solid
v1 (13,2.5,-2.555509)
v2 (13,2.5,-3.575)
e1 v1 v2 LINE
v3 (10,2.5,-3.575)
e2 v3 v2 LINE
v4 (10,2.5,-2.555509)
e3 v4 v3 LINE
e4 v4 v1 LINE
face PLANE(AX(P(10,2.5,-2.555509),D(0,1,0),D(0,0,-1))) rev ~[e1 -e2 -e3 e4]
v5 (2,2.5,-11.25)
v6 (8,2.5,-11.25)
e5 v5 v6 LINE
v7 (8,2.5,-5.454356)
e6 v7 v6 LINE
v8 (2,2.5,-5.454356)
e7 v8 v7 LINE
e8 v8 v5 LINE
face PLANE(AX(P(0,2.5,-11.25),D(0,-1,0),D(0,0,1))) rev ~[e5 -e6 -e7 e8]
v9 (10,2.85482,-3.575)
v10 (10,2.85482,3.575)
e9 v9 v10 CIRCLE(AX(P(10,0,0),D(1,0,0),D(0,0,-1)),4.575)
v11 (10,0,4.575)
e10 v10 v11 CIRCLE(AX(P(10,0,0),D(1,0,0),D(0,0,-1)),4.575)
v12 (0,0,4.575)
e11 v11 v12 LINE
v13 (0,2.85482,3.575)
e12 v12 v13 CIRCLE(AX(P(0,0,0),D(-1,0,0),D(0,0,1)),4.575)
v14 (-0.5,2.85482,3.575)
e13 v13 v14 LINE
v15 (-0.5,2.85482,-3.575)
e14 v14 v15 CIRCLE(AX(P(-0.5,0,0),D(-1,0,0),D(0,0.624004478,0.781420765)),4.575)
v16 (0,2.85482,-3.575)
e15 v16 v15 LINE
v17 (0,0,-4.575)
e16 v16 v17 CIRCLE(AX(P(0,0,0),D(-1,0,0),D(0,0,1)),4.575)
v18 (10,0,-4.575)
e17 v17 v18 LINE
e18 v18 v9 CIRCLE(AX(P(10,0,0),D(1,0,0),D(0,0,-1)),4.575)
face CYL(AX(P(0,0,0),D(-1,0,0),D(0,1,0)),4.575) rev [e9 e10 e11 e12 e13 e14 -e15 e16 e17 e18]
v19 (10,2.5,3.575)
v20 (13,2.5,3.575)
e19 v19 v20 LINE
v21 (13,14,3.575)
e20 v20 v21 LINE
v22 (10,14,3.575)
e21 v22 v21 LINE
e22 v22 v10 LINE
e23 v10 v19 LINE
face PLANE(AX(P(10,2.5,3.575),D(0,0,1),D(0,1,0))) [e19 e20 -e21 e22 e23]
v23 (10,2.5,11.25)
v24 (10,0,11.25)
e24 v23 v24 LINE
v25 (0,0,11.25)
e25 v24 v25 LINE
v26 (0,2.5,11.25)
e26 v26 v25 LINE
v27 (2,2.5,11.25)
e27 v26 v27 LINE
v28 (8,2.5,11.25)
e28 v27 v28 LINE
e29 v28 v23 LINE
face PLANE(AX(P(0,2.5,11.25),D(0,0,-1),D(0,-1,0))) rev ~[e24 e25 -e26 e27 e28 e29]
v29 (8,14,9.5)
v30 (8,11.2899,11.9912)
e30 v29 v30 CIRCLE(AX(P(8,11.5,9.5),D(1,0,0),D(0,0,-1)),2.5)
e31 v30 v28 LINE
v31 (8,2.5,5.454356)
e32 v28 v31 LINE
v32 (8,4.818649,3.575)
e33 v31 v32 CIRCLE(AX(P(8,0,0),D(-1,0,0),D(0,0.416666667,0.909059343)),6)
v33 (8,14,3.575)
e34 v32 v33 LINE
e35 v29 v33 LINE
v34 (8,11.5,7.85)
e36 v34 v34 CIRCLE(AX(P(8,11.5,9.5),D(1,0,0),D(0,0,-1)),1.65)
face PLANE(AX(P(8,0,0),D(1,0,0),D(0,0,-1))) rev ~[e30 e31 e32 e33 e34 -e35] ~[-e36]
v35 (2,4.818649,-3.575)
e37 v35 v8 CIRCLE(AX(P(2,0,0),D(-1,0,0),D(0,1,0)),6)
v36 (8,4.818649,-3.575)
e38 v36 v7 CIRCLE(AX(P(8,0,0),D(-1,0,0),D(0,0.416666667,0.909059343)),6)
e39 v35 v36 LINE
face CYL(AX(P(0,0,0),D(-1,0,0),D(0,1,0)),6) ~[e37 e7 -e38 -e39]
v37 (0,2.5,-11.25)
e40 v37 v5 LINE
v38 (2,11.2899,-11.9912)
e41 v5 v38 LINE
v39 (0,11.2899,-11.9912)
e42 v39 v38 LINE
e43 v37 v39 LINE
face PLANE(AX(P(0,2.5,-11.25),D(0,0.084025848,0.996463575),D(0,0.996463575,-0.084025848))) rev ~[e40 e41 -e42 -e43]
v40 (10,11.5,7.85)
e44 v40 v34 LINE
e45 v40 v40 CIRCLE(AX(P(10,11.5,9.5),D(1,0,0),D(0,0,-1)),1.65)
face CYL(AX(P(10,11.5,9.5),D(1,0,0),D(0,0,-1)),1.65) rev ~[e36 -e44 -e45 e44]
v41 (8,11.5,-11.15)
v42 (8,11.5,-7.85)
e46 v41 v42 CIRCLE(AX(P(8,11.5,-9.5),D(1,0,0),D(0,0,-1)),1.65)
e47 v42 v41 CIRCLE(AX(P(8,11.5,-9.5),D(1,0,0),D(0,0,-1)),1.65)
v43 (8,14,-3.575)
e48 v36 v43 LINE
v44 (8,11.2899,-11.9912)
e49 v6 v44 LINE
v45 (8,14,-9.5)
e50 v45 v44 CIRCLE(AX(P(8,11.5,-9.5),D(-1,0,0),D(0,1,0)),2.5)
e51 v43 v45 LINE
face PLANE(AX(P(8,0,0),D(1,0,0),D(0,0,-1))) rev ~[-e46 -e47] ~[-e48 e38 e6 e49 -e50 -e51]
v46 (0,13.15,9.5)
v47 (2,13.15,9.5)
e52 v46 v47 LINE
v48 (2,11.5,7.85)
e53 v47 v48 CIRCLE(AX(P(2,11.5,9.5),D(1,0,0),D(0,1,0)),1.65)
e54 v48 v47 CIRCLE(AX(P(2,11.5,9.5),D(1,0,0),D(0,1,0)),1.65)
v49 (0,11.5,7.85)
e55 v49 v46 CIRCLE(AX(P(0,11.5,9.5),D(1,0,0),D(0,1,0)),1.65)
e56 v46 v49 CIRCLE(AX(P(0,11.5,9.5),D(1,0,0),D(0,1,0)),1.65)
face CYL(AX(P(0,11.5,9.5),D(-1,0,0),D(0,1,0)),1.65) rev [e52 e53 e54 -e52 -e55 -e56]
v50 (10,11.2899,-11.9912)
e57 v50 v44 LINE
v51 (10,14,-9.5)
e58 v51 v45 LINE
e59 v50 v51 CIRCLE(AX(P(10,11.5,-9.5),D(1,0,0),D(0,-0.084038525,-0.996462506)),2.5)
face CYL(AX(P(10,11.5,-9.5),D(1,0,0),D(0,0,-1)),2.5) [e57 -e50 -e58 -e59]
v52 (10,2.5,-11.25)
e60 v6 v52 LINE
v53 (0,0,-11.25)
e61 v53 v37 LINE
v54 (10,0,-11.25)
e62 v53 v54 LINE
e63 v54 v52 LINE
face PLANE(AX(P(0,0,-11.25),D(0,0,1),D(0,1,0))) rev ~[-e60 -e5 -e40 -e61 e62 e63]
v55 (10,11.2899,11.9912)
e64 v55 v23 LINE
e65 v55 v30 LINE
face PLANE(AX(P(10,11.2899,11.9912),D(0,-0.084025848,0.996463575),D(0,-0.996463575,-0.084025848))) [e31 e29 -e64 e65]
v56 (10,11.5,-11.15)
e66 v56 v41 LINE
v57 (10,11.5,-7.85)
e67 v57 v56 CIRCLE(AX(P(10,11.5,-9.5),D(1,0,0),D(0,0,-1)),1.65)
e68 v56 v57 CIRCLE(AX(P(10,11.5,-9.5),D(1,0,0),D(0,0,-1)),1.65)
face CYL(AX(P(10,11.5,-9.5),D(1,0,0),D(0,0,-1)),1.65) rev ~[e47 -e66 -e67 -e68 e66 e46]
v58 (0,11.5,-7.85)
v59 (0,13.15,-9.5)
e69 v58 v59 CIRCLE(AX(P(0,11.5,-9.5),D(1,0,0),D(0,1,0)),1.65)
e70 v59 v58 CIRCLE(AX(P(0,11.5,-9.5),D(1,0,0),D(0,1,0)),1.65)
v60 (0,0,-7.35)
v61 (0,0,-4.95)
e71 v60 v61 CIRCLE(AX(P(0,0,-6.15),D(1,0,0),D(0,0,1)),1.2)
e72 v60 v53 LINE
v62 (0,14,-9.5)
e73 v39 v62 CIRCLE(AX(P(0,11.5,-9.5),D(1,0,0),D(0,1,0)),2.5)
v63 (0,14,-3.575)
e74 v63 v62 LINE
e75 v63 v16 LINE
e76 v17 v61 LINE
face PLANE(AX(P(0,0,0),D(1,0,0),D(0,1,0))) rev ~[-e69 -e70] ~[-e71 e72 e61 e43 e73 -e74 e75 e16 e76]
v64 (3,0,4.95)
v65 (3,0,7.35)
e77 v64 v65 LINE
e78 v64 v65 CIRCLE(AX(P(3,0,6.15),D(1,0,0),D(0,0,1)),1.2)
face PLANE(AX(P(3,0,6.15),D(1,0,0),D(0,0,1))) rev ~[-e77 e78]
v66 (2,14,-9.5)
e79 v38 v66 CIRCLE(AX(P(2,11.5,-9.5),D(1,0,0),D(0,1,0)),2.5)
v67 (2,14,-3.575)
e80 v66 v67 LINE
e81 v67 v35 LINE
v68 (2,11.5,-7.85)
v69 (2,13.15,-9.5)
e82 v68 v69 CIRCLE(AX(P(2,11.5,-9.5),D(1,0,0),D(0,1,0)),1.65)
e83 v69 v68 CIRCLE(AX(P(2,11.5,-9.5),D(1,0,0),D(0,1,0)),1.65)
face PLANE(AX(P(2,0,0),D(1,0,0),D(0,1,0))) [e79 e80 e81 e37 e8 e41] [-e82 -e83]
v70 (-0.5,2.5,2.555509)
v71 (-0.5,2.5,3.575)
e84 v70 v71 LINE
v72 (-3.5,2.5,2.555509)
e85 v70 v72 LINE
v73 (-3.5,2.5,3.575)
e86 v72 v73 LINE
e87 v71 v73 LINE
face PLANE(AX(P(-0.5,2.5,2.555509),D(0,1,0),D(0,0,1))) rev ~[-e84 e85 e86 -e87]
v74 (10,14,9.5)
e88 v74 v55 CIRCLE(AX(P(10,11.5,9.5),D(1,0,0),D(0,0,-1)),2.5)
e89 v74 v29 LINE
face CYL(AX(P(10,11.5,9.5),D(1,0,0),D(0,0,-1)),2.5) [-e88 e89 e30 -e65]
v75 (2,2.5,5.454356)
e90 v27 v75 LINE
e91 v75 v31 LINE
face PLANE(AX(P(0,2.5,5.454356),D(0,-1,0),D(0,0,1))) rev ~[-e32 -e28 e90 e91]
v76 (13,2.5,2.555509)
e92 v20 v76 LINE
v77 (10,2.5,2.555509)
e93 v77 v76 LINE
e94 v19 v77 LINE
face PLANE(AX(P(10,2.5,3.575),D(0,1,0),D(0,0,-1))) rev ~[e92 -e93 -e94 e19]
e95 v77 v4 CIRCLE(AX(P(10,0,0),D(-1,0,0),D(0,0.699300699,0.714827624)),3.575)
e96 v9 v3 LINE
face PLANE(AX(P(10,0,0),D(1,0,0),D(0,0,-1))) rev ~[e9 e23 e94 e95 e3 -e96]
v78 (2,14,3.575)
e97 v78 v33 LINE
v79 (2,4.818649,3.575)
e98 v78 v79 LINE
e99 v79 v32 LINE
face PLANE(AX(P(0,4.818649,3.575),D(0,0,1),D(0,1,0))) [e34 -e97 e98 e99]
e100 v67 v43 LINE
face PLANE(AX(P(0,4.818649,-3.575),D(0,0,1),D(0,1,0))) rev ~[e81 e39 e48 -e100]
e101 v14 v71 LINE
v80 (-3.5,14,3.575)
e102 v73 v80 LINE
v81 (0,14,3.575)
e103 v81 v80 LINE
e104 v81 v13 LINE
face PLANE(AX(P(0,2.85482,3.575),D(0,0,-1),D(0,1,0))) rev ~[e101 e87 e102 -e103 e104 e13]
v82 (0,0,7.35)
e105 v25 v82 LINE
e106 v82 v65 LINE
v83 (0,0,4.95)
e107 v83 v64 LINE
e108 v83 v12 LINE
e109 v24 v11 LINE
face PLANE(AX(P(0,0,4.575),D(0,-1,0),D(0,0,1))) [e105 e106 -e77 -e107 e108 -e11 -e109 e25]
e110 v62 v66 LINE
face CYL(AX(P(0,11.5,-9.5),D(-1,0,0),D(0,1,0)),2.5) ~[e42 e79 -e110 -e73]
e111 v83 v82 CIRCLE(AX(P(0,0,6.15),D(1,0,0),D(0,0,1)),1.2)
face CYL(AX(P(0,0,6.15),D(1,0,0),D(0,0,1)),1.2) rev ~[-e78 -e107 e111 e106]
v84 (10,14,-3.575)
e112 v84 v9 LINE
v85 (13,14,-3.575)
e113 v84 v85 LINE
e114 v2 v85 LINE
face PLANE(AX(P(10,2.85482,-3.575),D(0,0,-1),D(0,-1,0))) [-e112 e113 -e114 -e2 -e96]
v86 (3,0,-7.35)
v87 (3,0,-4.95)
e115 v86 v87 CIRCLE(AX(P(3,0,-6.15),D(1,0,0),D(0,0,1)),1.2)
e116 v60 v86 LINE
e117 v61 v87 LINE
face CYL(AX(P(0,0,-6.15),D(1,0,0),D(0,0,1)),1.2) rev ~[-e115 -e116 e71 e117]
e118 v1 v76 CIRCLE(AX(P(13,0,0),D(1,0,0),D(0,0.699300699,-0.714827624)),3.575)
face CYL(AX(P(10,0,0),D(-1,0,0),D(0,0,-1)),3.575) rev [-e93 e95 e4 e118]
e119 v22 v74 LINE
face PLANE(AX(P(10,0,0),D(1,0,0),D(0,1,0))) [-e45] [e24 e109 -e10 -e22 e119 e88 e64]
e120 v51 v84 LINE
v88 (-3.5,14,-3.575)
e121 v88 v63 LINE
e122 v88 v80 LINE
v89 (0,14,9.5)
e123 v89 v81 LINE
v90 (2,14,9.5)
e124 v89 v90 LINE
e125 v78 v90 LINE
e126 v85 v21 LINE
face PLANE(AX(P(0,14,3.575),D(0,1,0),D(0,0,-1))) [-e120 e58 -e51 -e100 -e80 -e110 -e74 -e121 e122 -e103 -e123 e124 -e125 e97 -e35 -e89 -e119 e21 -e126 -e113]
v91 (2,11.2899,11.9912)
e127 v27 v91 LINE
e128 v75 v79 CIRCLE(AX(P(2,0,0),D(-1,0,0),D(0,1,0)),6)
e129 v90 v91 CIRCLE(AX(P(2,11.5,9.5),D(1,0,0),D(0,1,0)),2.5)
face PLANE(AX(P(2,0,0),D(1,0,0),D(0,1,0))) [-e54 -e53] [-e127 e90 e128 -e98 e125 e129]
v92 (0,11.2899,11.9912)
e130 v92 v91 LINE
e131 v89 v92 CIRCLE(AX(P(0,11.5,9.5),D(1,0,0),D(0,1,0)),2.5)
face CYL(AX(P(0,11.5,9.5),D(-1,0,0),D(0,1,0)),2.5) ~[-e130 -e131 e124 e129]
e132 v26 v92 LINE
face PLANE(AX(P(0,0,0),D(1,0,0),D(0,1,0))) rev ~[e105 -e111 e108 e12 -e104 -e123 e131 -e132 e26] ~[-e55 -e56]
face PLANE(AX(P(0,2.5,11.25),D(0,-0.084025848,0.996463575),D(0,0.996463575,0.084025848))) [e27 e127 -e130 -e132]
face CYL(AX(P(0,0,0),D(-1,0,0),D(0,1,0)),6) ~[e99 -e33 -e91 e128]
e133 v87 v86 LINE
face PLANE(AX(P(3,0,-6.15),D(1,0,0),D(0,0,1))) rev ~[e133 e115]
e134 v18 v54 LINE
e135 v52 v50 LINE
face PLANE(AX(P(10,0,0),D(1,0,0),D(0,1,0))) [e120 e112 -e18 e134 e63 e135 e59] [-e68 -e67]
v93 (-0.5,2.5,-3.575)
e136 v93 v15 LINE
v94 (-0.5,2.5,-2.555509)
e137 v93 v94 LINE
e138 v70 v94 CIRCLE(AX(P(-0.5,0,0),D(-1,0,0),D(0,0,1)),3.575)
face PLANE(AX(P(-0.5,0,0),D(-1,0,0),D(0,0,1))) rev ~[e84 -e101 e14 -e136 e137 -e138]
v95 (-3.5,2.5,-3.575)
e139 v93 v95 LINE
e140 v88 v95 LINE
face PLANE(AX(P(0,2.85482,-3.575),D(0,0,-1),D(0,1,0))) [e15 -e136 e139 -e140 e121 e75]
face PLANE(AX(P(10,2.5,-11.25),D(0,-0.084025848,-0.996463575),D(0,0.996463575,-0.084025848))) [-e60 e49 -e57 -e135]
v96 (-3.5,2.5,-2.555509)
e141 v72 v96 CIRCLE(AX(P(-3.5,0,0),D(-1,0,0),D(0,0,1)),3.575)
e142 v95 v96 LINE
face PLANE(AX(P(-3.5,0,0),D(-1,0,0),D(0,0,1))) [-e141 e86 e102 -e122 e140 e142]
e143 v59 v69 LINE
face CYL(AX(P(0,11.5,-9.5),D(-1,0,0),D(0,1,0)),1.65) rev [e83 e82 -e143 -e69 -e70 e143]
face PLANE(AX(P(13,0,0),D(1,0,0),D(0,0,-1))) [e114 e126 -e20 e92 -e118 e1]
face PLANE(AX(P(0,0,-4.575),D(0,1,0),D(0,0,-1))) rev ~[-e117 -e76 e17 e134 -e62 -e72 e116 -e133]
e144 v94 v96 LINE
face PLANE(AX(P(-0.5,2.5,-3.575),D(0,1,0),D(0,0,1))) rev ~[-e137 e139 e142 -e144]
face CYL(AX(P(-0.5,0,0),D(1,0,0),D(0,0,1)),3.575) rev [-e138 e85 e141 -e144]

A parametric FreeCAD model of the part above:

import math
import FreeCAD as App
import Part
import Sketcher

V = App.Vector
Q = App.Units.Quantity

doc = App.newDocument("Part")
params = doc.addObject("Spreadsheet::Sheet", "Params")
for row, (alias, value) in enumerate([
    ("sketch1_diameter", "3.3 mm"),
    ("sketch1_radius", "2.5 mm"),
    ("sketch1_height", "19 mm"),
    ("sketch1_radius2", "1.25 mm"),
    ("sketch1_width", "2.5 mm"),
    ("pad1_length", "2 mm"),
    ("sketch2_radius", "6 mm"),
    ("sketch2_width", "2.5 mm"),
    ("sketch2_height", "7.15 mm"),
    ("pad2_length", "10 mm"),
    ("sketch3_radius", "6 mm"),
    ("sketch3_diameter", "3.3 mm"),
    ("sketch3_radius2", "2.5 mm"),
    ("sketch3_height", "19 mm"),
    ("pad3_length", "2 mm"),
    ("sketch4_height", "7.15 mm"),
    ("pad4_length", "0.5 mm"),
    ("sketch5_height", "7.15 mm"),
    ("sketch5_width", "11.5 mm"),
    ("pad5_length", "3 mm"),
    ("sketch6_width", "11.5 mm"),
    ("sketch6_height", "7.15 mm"),
    ("pad6_length", "3 mm"),
    ("sketch7_diameter", "2.4 mm"),
    ("hole_diameter", "2.4 mm"),
    ("hole_depth", "3 mm"),
], start=1):
    params.set(f"A{row}", alias)
    params.set(f"B{row}", "=" + value)
    params.setAlias(f"B{row}", alias)

body = doc.addObject("PartDesign::Body", "Body")

# Sketch on YZ plane
sketch1 = body.newObject("Sketcher::SketchObject", "Sketch")
sketch1.AttachmentSupport = (doc.getObject("YZ_Plane"), [""])
sketch1.MapMode = "FlatFace"
sketch1.addGeometry(Part.LineSegment(V(0, -4.575, 0), V(0, -4.9, 0)), False)
sketch1.addGeometry(Part.ArcOfCircle(Part.Circle(V(0, -6.15, 0), V(0, 0, 1), 1.25), math.radians(-90), math.radians(90)), False)
sketch1.addGeometry(Part.LineSegment(V(0, -7.4, 0), V(0, -11.25, 0)), False)
sketch1.addGeometry(Part.LineSegment(V(0, -11.25, 0), V(2.5, -11.25, 0)), False)
sketch1.addGeometry(Part.LineSegment(V(2.5, -11.25, 0), V(11.2899, -11.9912, 0)), False)
sketch1.addGeometry(Part.ArcOfCircle(Part.Circle(V(11.5, -9.5, 0), V(0, 0, 1), 2.5), math.radians(-94.820739), math.radians(0)), False)
sketch1.addGeometry(Part.LineSegment(V(14, -9.5, 0), V(14, 9.5, 0)), False)
sketch1.addGeometry(Part.ArcOfCircle(Part.Circle(V(11.5, 9.5, 0), V(0, 0, 1), 2.5), math.radians(0), math.radians(94.820739)), False)
sketch1.addGeometry(Part.LineSegment(V(11.2899, 11.9912, 0), V(2.5, 11.25, 0)), False)
sketch1.addGeometry(Part.LineSegment(V(2.5, 11.25, 0), V(0, 11.25, 0)), False)
sketch1.addGeometry(Part.LineSegment(V(0, 11.25, 0), V(0, 7.4, 0)), False)
sketch1.addGeometry(Part.ArcOfCircle(Part.Circle(V(0, 6.15, 0), V(0, 0, 1), 1.25), math.radians(-90), math.radians(90)), False)
sketch1.addGeometry(Part.LineSegment(V(0, 4.9, 0), V(0, 4.575, 0)), False)
sketch1.addGeometry(Part.ArcOfCircle(Part.Circle(V(0, 0, 0), V(0, 0, 1), 4.575), math.radians(-90), math.radians(90)), False)
sketch1.addGeometry(Part.Circle(V(11.5, -9.5, 0), V(0, 0, 1), 1.65), False)
sketch1.addGeometry(Part.Circle(V(11.5, 9.5, 0), V(0, 0, 1), 1.65), False)
sketch1.addConstraint(Sketcher.Constraint("Coincident", 0, 2, 1, 2))
sketch1.addConstraint(Sketcher.Constraint("Coincident", 1, 1, 2, 1))
sketch1.addConstraint(Sketcher.Constraint("Coincident", 2, 2, 3, 1))
sketch1.addConstraint(Sketcher.Constraint("Coincident", 3, 2, 4, 1))
sketch1.addConstraint(Sketcher.Constraint("Tangent", 4, 2, 5, 1))
sketch1.addConstraint(Sketcher.Constraint("Tangent", 5, 2, 6, 1))
sketch1.addConstraint(Sketcher.Constraint("Tangent", 6, 2, 7, 1))
sketch1.addConstraint(Sketcher.Constraint("Tangent", 7, 2, 8, 1))
sketch1.addConstraint(Sketcher.Constraint("Coincident", 8, 2, 9, 1))
sketch1.addConstraint(Sketcher.Constraint("Coincident", 9, 2, 10, 1))
sketch1.addConstraint(Sketcher.Constraint("Coincident", 10, 2, 11, 2))
sketch1.addConstraint(Sketcher.Constraint("Coincident", 11, 1, 12, 1))
sketch1.addConstraint(Sketcher.Constraint("Coincident", 12, 2, 13, 2))
sketch1.addConstraint(Sketcher.Constraint("Coincident", 13, 1, 0, 1))
sketch1.addConstraint(Sketcher.Constraint("Vertical", 0))
sketch1.addConstraint(Sketcher.Constraint("Vertical", 2))
sketch1.addConstraint(Sketcher.Constraint("Horizontal", 3))
sketch1.addConstraint(Sketcher.Constraint("Vertical", 6))
sketch1.addConstraint(Sketcher.Constraint("Horizontal", 9))
sketch1.addConstraint(Sketcher.Constraint("Vertical", 10))
sketch1.addConstraint(Sketcher.Constraint("Vertical", 12))
sketch1.addConstraint(Sketcher.Constraint("Coincident", 13, 3, -1, 1))
sketch1.addConstraint(Sketcher.Constraint("Coincident", 14, 3, 5, 3))
sketch1.addConstraint(Sketcher.Constraint("Coincident", 15, 3, 7, 3))
sketch1.addConstraint(Sketcher.Constraint("Equal", 5, 7))
sketch1.addConstraint(Sketcher.Constraint("Equal", 1, 11))
sketch1.addConstraint(Sketcher.Constraint("Equal", 14, 15))
sketch1.addConstraint(Sketcher.Constraint("Symmetric", 1, 3, 11, 3, -1, 1))
sketch1.addConstraint(Sketcher.Constraint("Symmetric", 2, 2, 9, 2, -1, 1))
sketch1.addConstraint(Sketcher.Constraint("Symmetric", 4, 2, 7, 2, -1))
sketch1.addConstraint(Sketcher.Constraint("PointOnObject", 1, 3, -2))
sketch1.addConstraint(Sketcher.Constraint("PointOnObject", 0, 2, -2))
sketch1.addConstraint(Sketcher.Constraint("PointOnObject", 1, 1, -2))
sketch1.addConstraint(Sketcher.Constraint("PointOnObject", 11, 1, -2))
sketch1.addConstraint(Sketcher.Constraint("Diameter", 14, Q("3.3 mm")))
sketch1.addConstraint(Sketcher.Constraint("Radius", 5, Q("2.5 mm")))
sketch1.addConstraint(Sketcher.Constraint("DistanceY", 6, 1, 6, 2, Q("19 mm")))
sketch1.addConstraint(Sketcher.Constraint("Radius", 1, Q("1.25 mm")))
sketch1.addConstraint(Sketcher.Constraint("DistanceX", 3, 1, 3, 2, Q("2.5 mm")))
sketch1.addConstraint(Sketcher.Constraint("Radius", 13, Q("4.575 mm")))
sketch1.addConstraint(Sketcher.Constraint("DistanceX", -1, 1, 5, 3, Q("11.5 mm")))
sketch1.addConstraint(Sketcher.Constraint("DistanceY", 1, 3, 11, 3, Q("12.3 mm")))
sketch1.addConstraint(Sketcher.Constraint("DistanceY", 2, 2, -1, 1, Q("11.25 mm")))
sketch1.setExpression("Constraints[34]", "Params.sketch1_diameter")
sketch1.setExpression("Constraints[35]", "Params.sketch1_radius")
sketch1.setExpression("Constraints[36]", "Params.sketch1_height")
sketch1.setExpression("Constraints[37]", "Params.sketch1_radius2")
sketch1.setExpression("Constraints[38]", "Params.sketch1_width")
pad1 = body.newObject("PartDesign::Pad", "Pad")
pad1.Profile = sketch1
pad1.setExpression("Length", "Params.pad1_length")

# Sketch on YZ plane
sketch2 = body.newObject("Sketcher::SketchObject", "Sketch001")
sketch2.AttachmentSupport = (doc.getObject("YZ_Plane"), [""])
sketch2.MapMode = "FlatFace"
sketch2.addGeometry(Part.LineSegment(V(0, -4.575, 0), V(0, -11.25, 0)), False)
sketch2.addGeometry(Part.LineSegment(V(0, -11.25, 0), V(2.5, -11.25, 0)), False)
sketch2.addGeometry(Part.LineSegment(V(2.5, -11.25, 0), V(2.5, -5.454356, 0)), False)
sketch2.addGeometry(Part.ArcOfCircle(Part.Circle(V(0, 0, 0), V(0, 0, 1), 6), math.radians(-65.375682), math.radians(-36.572061)), False)
sketch2.addGeometry(Part.LineSegment(V(4.818649, -3.575, 0), V(14, -3.575, 0)), False)
sketch2.addGeometry(Part.LineSegment(V(14, -3.575, 0), V(14, 3.575, 0)), False)
sketch2.addGeometry(Part.LineSegment(V(14, 3.575, 0), V(4.818649, 3.575, 0)), False)
sketch2.addGeometry(Part.ArcOfCircle(Part.Circle(V(0, 0, 0), V(0, 0, 1), 6), math.radians(36.572061), math.radians(65.375682)), False)
sketch2.addGeometry(Part.LineSegment(V(2.5, 5.454356, 0), V(2.5, 11.25, 0)), False)
sketch2.addGeometry(Part.LineSegment(V(2.5, 11.25, 0), V(0, 11.25, 0)), False)
sketch2.addGeometry(Part.LineSegment(V(0, 11.25, 0), V(0, 4.575, 0)), False)
sketch2.addGeometry(Part.ArcOfCircle(Part.Circle(V(0, 0, 0), V(0, 0, 1), 4.575), math.radians(-90), math.radians(90)), False)
sketch2.addConstraint(Sketcher.Constraint("Coincident", 0, 2, 1, 1))
sketch2.addConstraint(Sketcher.Constraint("Coincident", 1, 2, 2, 1))
sketch2.addConstraint(Sketcher.Constraint("Coincident", 2, 2, 3, 1))
sketch2.addConstraint(Sketcher.Constraint("Coincident", 3, 2, 4, 1))
sketch2.addConstraint(Sketcher.Constraint("Coincident", 4, 2, 5, 1))
sketch2.addConstraint(Sketcher.Constraint("Coincident", 5, 2, 6, 1))
sketch2.addConstraint(Sketcher.Constraint("Coincident", 6, 2, 7, 1))
sketch2.addConstraint(Sketcher.Constraint("Coincident", 7, 2, 8, 1))
sketch2.addConstraint(Sketcher.Constraint("Coincident", 8, 2, 9, 1))
sketch2.addConstraint(Sketcher.Constraint("Coincident", 9, 2, 10, 1))
sketch2.addConstraint(Sketcher.Constraint("Coincident", 10, 2, 11, 2))
sketch2.addConstraint(Sketcher.Constraint("Coincident", 11, 1, 0, 1))
sketch2.addConstraint(Sketcher.Constraint("Vertical", 0))
sketch2.addConstraint(Sketcher.Constraint("Horizontal", 1))
sketch2.addConstraint(Sketcher.Constraint("Vertical", 2))
sketch2.addConstraint(Sketcher.Constraint("Horizontal", 4))
sketch2.addConstraint(Sketcher.Constraint("Vertical", 5))
sketch2.addConstraint(Sketcher.Constraint("Horizontal", 6))
sketch2.addConstraint(Sketcher.Constraint("Vertical", 8))
sketch2.addConstraint(Sketcher.Constraint("Horizontal", 9))
sketch2.addConstraint(Sketcher.Constraint("Vertical", 10))
sketch2.addConstraint(Sketcher.Constraint("Coincident", 3, 3, -1, 1))
sketch2.addConstraint(Sketcher.Constraint("Coincident", 7, 3, -1, 1))
sketch2.addConstraint(Sketcher.Constraint("Coincident", 11, 3, -1, 1))
sketch2.addConstraint(Sketcher.Constraint("Equal", 3, 7))
sketch2.addConstraint(Sketcher.Constraint("Symmetric", 0, 2, 9, 2, -1, 1))
sketch2.addConstraint(Sketcher.Constraint("PointOnObject", 0, 2, -2))
sketch2.addConstraint(Sketcher.Constraint("Vertical", 3, 2, 6, 2))
sketch2.addConstraint(Sketcher.Constraint("Vertical", 2, 2, 7, 2))
sketch2.addConstraint(Sketcher.Constraint("Radius", 3, Q("6 mm")))
sketch2.addConstraint(Sketcher.Constraint("DistanceX", 1, 1, 1, 2, Q("2.5 mm")))
sketch2.addConstraint(Sketcher.Constraint("Radius", 11, Q("4.575 mm")))
sketch2.addConstraint(Sketcher.Constraint("DistanceY", 5, 1, 5, 2, Q("7.15 mm")))
sketch2.addConstraint(Sketcher.Constraint("DistanceX", 2, 2, 4, 2, Q("11.5 mm")))
sketch2.addConstraint(Sketcher.Constraint("DistanceY", 0, 2, -1, 1, Q("11.25 mm")))
sketch2.setExpression("Constraints[29]", "Params.sketch2_radius")
sketch2.setExpression("Constraints[30]", "Params.sketch2_width")
sketch2.setExpression("Constraints[32]", "Params.sketch2_height")
pad2 = body.newObject("PartDesign::Pad", "Pad001")
pad2.Profile = sketch2
pad2.setExpression("Length", "Params.pad2_length")

# Sketch on YZ plane
sketch3 = body.newObject("Sketcher::SketchObject", "Sketch002")
sketch3.AttachmentSupport = (doc.getObject("YZ_Plane"), [""])
sketch3.MapMode = "FlatFace"
sketch3.AttachmentOffset = App.Placement(V(0, 0, 10), App.Rotation())
sketch3.addGeometry(Part.LineSegment(V(2.5, 11.25, 0), V(2.5, 5.454356, 0)), False)
sketch3.addGeometry(Part.ArcOfCircle(Part.Circle(V(0, 0, 0), V(0, 0, 1), 6), math.radians(-65.375682), math.radians(65.375682)), False)
sketch3.addGeometry(Part.LineSegment(V(2.5, -5.454356, 0), V(2.5, -11.25, 0)), False)
sketch3.addGeometry(Part.LineSegment(V(2.5, -11.25, 0), V(11.2899, -11.9912, 0)), False)
sketch3.addGeometry(Part.ArcOfCircle(Part.Circle(V(11.5, -9.5, 0), V(0, 0, 1), 2.5), math.radians(-94.820739), math.radians(0)), False)
sketch3.addGeometry(Part.LineSegment(V(14, -9.5, 0), V(14, 9.5, 0)), False)
sketch3.addGeometry(Part.ArcOfCircle(Part.Circle(V(11.5, 9.5, 0), V(0, 0, 1), 2.5), math.radians(0), math.radians(94.820739)), False)
sketch3.addGeometry(Part.LineSegment(V(11.2899, 11.9912, 0), V(2.5, 11.25, 0)), False)
sketch3.addGeometry(Part.Circle(V(11.5, 9.5, 0), V(0, 0, 1), 1.65), False)
sketch3.addGeometry(Part.Circle(V(11.5, -9.5, 0), V(0, 0, 1), 1.65), False)
sketch3.addConstraint(Sketcher.Constraint("Coincident", 0, 2, 1, 2))
sketch3.addConstraint(Sketcher.Constraint("Coincident", 1, 1, 2, 1))
sketch3.addConstraint(Sketcher.Constraint("Coincident", 2, 2, 3, 1))
sketch3.addConstraint(Sketcher.Constraint("Tangent", 3, 2, 4, 1))
sketch3.addConstraint(Sketcher.Constraint("Tangent", 4, 2, 5, 1))
sketch3.addConstraint(Sketcher.Constraint("Tangent", 5, 2, 6, 1))
sketch3.addConstraint(Sketcher.Constraint("Tangent", 6, 2, 7, 1))
sketch3.addConstraint(Sketcher.Constraint("Coincident", 7, 2, 0, 1))
sketch3.addConstraint(Sketcher.Constraint("Vertical", 0))
sketch3.addConstraint(Sketcher.Constraint("Vertical", 2))
sketch3.addConstraint(Sketcher.Constraint("Vertical", 5))
sketch3.addConstraint(Sketcher.Constraint("Coincident", 1, 3, -1, 1))
sketch3.addConstraint(Sketcher.Constraint("Coincident", 8, 3, 6, 3))
sketch3.addConstraint(Sketcher.Constraint("Coincident", 9, 3, 4, 3))
sketch3.addConstraint(Sketcher.Constraint("Equal", 4, 6))
sketch3.addConstraint(Sketcher.Constraint("Equal", 8, 9))
sketch3.addConstraint(Sketcher.Constraint("Symmetric", 3, 2, 6, 2, -1))
sketch3.addConstraint(Sketcher.Constraint("Vertical", 0, 2, 1, 1))
sketch3.addConstraint(Sketcher.Constraint("Radius", 1, Q("6 mm")))
sketch3.addConstraint(Sketcher.Constraint("Diameter", 8, Q("3.3 mm")))
sketch3.addConstraint(Sketcher.Constraint("Radius", 4, Q("2.5 mm")))
sketch3.addConstraint(Sketcher.Constraint("DistanceY", 5, 1, 5, 2, Q("19 mm")))
sketch3.addConstraint(Sketcher.Constraint("DistanceX", -1, 1, 4, 3, Q("11.5 mm")))
sketch3.addConstraint(Sketcher.Constraint("DistanceX", -1, 1, 0, 2, Q("2.5 mm")))
sketch3.addConstraint(Sketcher.Constraint("Angle", 3, Q("-4.82 deg")))
sketch3.setExpression("Constraints[18]", "Params.sketch3_radius")
sketch3.setExpression("Constraints[19]", "Params.sketch3_diameter")
sketch3.setExpression("Constraints[20]", "Params.sketch3_radius2")
sketch3.setExpression("Constraints[21]", "Params.sketch3_height")
pad3 = body.newObject("PartDesign::Pad", "Pad002")
pad3.Profile = sketch3
pad3.setExpression("Length", "Params.pad3_length")
pad3.Reversed = True

# Sketch on YZ plane
sketch4 = body.newObject("Sketcher::SketchObject", "Sketch003")
sketch4.AttachmentSupport = (doc.getObject("YZ_Plane"), [""])
sketch4.MapMode = "FlatFace"
sketch4.addGeometry(Part.LineSegment(V(2.85482, -3.575, 0), V(14, -3.575, 0)), False)
sketch4.addGeometry(Part.LineSegment(V(14, -3.575, 0), V(14, 3.575, 0)), False)
sketch4.addGeometry(Part.LineSegment(V(14, 3.575, 0), V(2.85482, 3.575, 0)), False)
sketch4.addGeometry(Part.ArcOfCircle(Part.Circle(V(0, 0, 0), V(0, 0, 1), 4.575), math.radians(-51.390844), math.radians(51.390844)), False)
sketch4.addConstraint(Sketcher.Constraint("Coincident", 0, 2, 1, 1))
sketch4.addConstraint(Sketcher.Constraint("Coincident", 1, 2, 2, 1))
sketch4.addConstraint(Sketcher.Constraint("Coincident", 2, 2, 3, 2))
sketch4.addConstraint(Sketcher.Constraint("Coincident", 3, 1, 0, 1))
sketch4.addConstraint(Sketcher.Constraint("Horizontal", 0))
sketch4.addConstraint(Sketcher.Constraint("Vertical", 1))
sketch4.addConstraint(Sketcher.Constraint("Horizontal", 2))
sketch4.addConstraint(Sketcher.Constraint("Coincident", 3, 3, -1, 1))
sketch4.addConstraint(Sketcher.Constraint("Vertical", 2, 2, 3, 1))
sketch4.addConstraint(Sketcher.Constraint("Radius", 3, Q("4.575 mm")))
sketch4.addConstraint(Sketcher.Constraint("DistanceY", 1, 1, 1, 2, Q("7.15 mm")))
sketch4.addConstraint(Sketcher.Constraint("DistanceX", -1, 1, 0, 2, Q("14 mm")))
sketch4.setExpression("Constraints[10]", "Params.sketch4_height")
pad4 = body.newObject("PartDesign::Pad", "Pad003")
pad4.Profile = sketch4
pad4.setExpression("Length", "Params.pad4_length")
pad4.Reversed = True

# Sketch on YZ plane
sketch5 = body.newObject("Sketcher::SketchObject", "Sketch004")
sketch5.AttachmentSupport = (doc.getObject("YZ_Plane"), [""])
sketch5.MapMode = "FlatFace"
sketch5.AttachmentOffset = App.Placement(V(0, 0, -0.5), App.Rotation())
sketch5.addGeometry(Part.ArcOfCircle(Part.Circle(V(0, 0, 0), V(0, 0, 1), 3.575), math.radians(-45.629074), math.radians(45.629074)), False)
sketch5.addGeometry(Part.LineSegment(V(2.5, 2.555509, 0), V(2.5, 3.575, 0)), False)
sketch5.addGeometry(Part.LineSegment(V(2.5, 3.575, 0), V(14, 3.575, 0)), False)
sketch5.addGeometry(Part.LineSegment(V(14, 3.575, 0), V(14, -3.575, 0)), False)
sketch5.addGeometry(Part.LineSegment(V(14, -3.575, 0), V(2.5, -3.575, 0)), False)
sketch5.addGeometry(Part.LineSegment(V(2.5, -3.575, 0), V(2.5, -2.555509, 0)), False)
sketch5.addConstraint(Sketcher.Constraint("Coincident", 0, 2, 1, 1))
sketch5.addConstraint(Sketcher.Constraint("Coincident", 1, 2, 2, 1))
sketch5.addConstraint(Sketcher.Constraint("Coincident", 2, 2, 3, 1))
sketch5.addConstraint(Sketcher.Constraint("Coincident", 3, 2, 4, 1))
sketch5.addConstraint(Sketcher.Constraint("Coincident", 4, 2, 5, 1))
sketch5.addConstraint(Sketcher.Constraint("Coincident", 5, 2, 0, 1))
sketch5.addConstraint(Sketcher.Constraint("Vertical", 1))
sketch5.addConstraint(Sketcher.Constraint("Horizontal", 2))
sketch5.addConstraint(Sketcher.Constraint("Vertical", 3))
sketch5.addConstraint(Sketcher.Constraint("Horizontal", 4))
sketch5.addConstraint(Sketcher.Constraint("Vertical", 5))
sketch5.addConstraint(Sketcher.Constraint("Coincident", 0, 3, -1, 1))
sketch5.addConstraint(Sketcher.Constraint("Symmetric", 1, 2, 4, 2, -1))
sketch5.addConstraint(Sketcher.Constraint("Radius", 0, Q("3.575 mm")))
sketch5.addConstraint(Sketcher.Constraint("DistanceY", 3, 2, 3, 1, Q("7.15 mm")))
sketch5.addConstraint(Sketcher.Constraint("DistanceX", 2, 1, 2, 2, Q("11.5 mm")))
sketch5.addConstraint(Sketcher.Constraint("DistanceX", -1, 1, 2, 2, Q("14 mm")))
sketch5.setExpression("Constraints[14]", "Params.sketch5_height")
sketch5.setExpression("Constraints[15]", "Params.sketch5_width")
pad5 = body.newObject("PartDesign::Pad", "Pad004")
pad5.Profile = sketch5
pad5.setExpression("Length", "Params.pad5_length")
pad5.Reversed = True

# Sketch on YZ plane
sketch6 = body.newObject("Sketcher::SketchObject", "Sketch005")
sketch6.AttachmentSupport = (doc.getObject("YZ_Plane"), [""])
sketch6.MapMode = "FlatFace"
sketch6.AttachmentOffset = App.Placement(V(0, 0, 10), App.Rotation())
sketch6.addGeometry(Part.LineSegment(V(2.5, 3.575, 0), V(2.5, 2.555509, 0)), False)
sketch6.addGeometry(Part.ArcOfCircle(Part.Circle(V(0, 0, 0), V(0, 0, 1), 3.575), math.radians(-45.629074), math.radians(45.629074)), False)
sketch6.addGeometry(Part.LineSegment(V(2.5, -2.555509, 0), V(2.5, -3.575, 0)), False)
sketch6.addGeometry(Part.LineSegment(V(2.5, -3.575, 0), V(14, -3.575, 0)), False)
sketch6.addGeometry(Part.LineSegment(V(14, -3.575, 0), V(14, 3.575, 0)), False)
sketch6.addGeometry(Part.LineSegment(V(14, 3.575, 0), V(2.5, 3.575, 0)), False)
sketch6.addConstraint(Sketcher.Constraint("Coincident", 0, 2, 1, 2))
sketch6.addConstraint(Sketcher.Constraint("Coincident", 1, 1, 2, 1))
sketch6.addConstraint(Sketcher.Constraint("Coincident", 2, 2, 3, 1))
sketch6.addConstraint(Sketcher.Constraint("Coincident", 3, 2, 4, 1))
sketch6.addConstraint(Sketcher.Constraint("Coincident", 4, 2, 5, 1))
sketch6.addConstraint(Sketcher.Constraint("Coincident", 5, 2, 0, 1))
sketch6.addConstraint(Sketcher.Constraint("Vertical", 0))
sketch6.addConstraint(Sketcher.Constraint("Vertical", 2))
sketch6.addConstraint(Sketcher.Constraint("Horizontal", 3))
sketch6.addConstraint(Sketcher.Constraint("Vertical", 4))
sketch6.addConstraint(Sketcher.Constraint("Horizontal", 5))
sketch6.addConstraint(Sketcher.Constraint("Coincident", 1, 3, -1, 1))
sketch6.addConstraint(Sketcher.Constraint("Symmetric", 2, 2, 5, 2, -1))
sketch6.addConstraint(Sketcher.Constraint("DistanceX", 3, 1, 3, 2, Q("11.5 mm")))
sketch6.addConstraint(Sketcher.Constraint("Radius", 1, Q("3.575 mm")))
sketch6.addConstraint(Sketcher.Constraint("DistanceY", 4, 1, 4, 2, Q("7.15 mm")))
sketch6.addConstraint(Sketcher.Constraint("DistanceX", -1, 1, 0, 2, Q("2.5 mm")))
sketch6.setExpression("Constraints[13]", "Params.sketch6_width")
sketch6.setExpression("Constraints[15]", "Params.sketch6_height")
pad6 = body.newObject("PartDesign::Pad", "Pad005")
pad6.Profile = sketch6
pad6.setExpression("Length", "Params.pad6_length")

# Sketch on YZ plane
sketch7 = body.newObject("Sketcher::SketchObject", "Sketch006")
sketch7.AttachmentSupport = (doc.getObject("YZ_Plane"), [""])
sketch7.MapMode = "FlatFace"
sketch7.addGeometry(Part.Circle(V(0, -6.15, 0), V(0, 0, 1), 1.2), False)
sketch7.addGeometry(Part.Circle(V(0, 6.15, 0), V(0, 0, 1), 1.2), False)
sketch7.addConstraint(Sketcher.Constraint("Equal", 0, 1))
sketch7.addConstraint(Sketcher.Constraint("Symmetric", 0, 3, 1, 3, -1, 1))
sketch7.addConstraint(Sketcher.Constraint("PointOnObject", 0, 3, -2))
sketch7.addConstraint(Sketcher.Constraint("Diameter", 0, Q("2.4 mm")))
sketch7.addConstraint(Sketcher.Constraint("DistanceY", 0, 3, 1, 3, Q("12.3 mm")))
sketch7.setExpression("Constraints[3]", "Params.sketch7_diameter")
doc.recompute()
hole = body.newObject("PartDesign::Hole", "Hole")
hole.Profile = sketch7
hole.ThreadType = "None"
hole.setExpression("Diameter", "Params.hole_diameter")
hole.DepthType = "Dimension"
hole.setExpression("Depth", "Params.hole_depth")
hole.DrillPoint = "Flat"
hole.Reversed = True

doc.recompute()
